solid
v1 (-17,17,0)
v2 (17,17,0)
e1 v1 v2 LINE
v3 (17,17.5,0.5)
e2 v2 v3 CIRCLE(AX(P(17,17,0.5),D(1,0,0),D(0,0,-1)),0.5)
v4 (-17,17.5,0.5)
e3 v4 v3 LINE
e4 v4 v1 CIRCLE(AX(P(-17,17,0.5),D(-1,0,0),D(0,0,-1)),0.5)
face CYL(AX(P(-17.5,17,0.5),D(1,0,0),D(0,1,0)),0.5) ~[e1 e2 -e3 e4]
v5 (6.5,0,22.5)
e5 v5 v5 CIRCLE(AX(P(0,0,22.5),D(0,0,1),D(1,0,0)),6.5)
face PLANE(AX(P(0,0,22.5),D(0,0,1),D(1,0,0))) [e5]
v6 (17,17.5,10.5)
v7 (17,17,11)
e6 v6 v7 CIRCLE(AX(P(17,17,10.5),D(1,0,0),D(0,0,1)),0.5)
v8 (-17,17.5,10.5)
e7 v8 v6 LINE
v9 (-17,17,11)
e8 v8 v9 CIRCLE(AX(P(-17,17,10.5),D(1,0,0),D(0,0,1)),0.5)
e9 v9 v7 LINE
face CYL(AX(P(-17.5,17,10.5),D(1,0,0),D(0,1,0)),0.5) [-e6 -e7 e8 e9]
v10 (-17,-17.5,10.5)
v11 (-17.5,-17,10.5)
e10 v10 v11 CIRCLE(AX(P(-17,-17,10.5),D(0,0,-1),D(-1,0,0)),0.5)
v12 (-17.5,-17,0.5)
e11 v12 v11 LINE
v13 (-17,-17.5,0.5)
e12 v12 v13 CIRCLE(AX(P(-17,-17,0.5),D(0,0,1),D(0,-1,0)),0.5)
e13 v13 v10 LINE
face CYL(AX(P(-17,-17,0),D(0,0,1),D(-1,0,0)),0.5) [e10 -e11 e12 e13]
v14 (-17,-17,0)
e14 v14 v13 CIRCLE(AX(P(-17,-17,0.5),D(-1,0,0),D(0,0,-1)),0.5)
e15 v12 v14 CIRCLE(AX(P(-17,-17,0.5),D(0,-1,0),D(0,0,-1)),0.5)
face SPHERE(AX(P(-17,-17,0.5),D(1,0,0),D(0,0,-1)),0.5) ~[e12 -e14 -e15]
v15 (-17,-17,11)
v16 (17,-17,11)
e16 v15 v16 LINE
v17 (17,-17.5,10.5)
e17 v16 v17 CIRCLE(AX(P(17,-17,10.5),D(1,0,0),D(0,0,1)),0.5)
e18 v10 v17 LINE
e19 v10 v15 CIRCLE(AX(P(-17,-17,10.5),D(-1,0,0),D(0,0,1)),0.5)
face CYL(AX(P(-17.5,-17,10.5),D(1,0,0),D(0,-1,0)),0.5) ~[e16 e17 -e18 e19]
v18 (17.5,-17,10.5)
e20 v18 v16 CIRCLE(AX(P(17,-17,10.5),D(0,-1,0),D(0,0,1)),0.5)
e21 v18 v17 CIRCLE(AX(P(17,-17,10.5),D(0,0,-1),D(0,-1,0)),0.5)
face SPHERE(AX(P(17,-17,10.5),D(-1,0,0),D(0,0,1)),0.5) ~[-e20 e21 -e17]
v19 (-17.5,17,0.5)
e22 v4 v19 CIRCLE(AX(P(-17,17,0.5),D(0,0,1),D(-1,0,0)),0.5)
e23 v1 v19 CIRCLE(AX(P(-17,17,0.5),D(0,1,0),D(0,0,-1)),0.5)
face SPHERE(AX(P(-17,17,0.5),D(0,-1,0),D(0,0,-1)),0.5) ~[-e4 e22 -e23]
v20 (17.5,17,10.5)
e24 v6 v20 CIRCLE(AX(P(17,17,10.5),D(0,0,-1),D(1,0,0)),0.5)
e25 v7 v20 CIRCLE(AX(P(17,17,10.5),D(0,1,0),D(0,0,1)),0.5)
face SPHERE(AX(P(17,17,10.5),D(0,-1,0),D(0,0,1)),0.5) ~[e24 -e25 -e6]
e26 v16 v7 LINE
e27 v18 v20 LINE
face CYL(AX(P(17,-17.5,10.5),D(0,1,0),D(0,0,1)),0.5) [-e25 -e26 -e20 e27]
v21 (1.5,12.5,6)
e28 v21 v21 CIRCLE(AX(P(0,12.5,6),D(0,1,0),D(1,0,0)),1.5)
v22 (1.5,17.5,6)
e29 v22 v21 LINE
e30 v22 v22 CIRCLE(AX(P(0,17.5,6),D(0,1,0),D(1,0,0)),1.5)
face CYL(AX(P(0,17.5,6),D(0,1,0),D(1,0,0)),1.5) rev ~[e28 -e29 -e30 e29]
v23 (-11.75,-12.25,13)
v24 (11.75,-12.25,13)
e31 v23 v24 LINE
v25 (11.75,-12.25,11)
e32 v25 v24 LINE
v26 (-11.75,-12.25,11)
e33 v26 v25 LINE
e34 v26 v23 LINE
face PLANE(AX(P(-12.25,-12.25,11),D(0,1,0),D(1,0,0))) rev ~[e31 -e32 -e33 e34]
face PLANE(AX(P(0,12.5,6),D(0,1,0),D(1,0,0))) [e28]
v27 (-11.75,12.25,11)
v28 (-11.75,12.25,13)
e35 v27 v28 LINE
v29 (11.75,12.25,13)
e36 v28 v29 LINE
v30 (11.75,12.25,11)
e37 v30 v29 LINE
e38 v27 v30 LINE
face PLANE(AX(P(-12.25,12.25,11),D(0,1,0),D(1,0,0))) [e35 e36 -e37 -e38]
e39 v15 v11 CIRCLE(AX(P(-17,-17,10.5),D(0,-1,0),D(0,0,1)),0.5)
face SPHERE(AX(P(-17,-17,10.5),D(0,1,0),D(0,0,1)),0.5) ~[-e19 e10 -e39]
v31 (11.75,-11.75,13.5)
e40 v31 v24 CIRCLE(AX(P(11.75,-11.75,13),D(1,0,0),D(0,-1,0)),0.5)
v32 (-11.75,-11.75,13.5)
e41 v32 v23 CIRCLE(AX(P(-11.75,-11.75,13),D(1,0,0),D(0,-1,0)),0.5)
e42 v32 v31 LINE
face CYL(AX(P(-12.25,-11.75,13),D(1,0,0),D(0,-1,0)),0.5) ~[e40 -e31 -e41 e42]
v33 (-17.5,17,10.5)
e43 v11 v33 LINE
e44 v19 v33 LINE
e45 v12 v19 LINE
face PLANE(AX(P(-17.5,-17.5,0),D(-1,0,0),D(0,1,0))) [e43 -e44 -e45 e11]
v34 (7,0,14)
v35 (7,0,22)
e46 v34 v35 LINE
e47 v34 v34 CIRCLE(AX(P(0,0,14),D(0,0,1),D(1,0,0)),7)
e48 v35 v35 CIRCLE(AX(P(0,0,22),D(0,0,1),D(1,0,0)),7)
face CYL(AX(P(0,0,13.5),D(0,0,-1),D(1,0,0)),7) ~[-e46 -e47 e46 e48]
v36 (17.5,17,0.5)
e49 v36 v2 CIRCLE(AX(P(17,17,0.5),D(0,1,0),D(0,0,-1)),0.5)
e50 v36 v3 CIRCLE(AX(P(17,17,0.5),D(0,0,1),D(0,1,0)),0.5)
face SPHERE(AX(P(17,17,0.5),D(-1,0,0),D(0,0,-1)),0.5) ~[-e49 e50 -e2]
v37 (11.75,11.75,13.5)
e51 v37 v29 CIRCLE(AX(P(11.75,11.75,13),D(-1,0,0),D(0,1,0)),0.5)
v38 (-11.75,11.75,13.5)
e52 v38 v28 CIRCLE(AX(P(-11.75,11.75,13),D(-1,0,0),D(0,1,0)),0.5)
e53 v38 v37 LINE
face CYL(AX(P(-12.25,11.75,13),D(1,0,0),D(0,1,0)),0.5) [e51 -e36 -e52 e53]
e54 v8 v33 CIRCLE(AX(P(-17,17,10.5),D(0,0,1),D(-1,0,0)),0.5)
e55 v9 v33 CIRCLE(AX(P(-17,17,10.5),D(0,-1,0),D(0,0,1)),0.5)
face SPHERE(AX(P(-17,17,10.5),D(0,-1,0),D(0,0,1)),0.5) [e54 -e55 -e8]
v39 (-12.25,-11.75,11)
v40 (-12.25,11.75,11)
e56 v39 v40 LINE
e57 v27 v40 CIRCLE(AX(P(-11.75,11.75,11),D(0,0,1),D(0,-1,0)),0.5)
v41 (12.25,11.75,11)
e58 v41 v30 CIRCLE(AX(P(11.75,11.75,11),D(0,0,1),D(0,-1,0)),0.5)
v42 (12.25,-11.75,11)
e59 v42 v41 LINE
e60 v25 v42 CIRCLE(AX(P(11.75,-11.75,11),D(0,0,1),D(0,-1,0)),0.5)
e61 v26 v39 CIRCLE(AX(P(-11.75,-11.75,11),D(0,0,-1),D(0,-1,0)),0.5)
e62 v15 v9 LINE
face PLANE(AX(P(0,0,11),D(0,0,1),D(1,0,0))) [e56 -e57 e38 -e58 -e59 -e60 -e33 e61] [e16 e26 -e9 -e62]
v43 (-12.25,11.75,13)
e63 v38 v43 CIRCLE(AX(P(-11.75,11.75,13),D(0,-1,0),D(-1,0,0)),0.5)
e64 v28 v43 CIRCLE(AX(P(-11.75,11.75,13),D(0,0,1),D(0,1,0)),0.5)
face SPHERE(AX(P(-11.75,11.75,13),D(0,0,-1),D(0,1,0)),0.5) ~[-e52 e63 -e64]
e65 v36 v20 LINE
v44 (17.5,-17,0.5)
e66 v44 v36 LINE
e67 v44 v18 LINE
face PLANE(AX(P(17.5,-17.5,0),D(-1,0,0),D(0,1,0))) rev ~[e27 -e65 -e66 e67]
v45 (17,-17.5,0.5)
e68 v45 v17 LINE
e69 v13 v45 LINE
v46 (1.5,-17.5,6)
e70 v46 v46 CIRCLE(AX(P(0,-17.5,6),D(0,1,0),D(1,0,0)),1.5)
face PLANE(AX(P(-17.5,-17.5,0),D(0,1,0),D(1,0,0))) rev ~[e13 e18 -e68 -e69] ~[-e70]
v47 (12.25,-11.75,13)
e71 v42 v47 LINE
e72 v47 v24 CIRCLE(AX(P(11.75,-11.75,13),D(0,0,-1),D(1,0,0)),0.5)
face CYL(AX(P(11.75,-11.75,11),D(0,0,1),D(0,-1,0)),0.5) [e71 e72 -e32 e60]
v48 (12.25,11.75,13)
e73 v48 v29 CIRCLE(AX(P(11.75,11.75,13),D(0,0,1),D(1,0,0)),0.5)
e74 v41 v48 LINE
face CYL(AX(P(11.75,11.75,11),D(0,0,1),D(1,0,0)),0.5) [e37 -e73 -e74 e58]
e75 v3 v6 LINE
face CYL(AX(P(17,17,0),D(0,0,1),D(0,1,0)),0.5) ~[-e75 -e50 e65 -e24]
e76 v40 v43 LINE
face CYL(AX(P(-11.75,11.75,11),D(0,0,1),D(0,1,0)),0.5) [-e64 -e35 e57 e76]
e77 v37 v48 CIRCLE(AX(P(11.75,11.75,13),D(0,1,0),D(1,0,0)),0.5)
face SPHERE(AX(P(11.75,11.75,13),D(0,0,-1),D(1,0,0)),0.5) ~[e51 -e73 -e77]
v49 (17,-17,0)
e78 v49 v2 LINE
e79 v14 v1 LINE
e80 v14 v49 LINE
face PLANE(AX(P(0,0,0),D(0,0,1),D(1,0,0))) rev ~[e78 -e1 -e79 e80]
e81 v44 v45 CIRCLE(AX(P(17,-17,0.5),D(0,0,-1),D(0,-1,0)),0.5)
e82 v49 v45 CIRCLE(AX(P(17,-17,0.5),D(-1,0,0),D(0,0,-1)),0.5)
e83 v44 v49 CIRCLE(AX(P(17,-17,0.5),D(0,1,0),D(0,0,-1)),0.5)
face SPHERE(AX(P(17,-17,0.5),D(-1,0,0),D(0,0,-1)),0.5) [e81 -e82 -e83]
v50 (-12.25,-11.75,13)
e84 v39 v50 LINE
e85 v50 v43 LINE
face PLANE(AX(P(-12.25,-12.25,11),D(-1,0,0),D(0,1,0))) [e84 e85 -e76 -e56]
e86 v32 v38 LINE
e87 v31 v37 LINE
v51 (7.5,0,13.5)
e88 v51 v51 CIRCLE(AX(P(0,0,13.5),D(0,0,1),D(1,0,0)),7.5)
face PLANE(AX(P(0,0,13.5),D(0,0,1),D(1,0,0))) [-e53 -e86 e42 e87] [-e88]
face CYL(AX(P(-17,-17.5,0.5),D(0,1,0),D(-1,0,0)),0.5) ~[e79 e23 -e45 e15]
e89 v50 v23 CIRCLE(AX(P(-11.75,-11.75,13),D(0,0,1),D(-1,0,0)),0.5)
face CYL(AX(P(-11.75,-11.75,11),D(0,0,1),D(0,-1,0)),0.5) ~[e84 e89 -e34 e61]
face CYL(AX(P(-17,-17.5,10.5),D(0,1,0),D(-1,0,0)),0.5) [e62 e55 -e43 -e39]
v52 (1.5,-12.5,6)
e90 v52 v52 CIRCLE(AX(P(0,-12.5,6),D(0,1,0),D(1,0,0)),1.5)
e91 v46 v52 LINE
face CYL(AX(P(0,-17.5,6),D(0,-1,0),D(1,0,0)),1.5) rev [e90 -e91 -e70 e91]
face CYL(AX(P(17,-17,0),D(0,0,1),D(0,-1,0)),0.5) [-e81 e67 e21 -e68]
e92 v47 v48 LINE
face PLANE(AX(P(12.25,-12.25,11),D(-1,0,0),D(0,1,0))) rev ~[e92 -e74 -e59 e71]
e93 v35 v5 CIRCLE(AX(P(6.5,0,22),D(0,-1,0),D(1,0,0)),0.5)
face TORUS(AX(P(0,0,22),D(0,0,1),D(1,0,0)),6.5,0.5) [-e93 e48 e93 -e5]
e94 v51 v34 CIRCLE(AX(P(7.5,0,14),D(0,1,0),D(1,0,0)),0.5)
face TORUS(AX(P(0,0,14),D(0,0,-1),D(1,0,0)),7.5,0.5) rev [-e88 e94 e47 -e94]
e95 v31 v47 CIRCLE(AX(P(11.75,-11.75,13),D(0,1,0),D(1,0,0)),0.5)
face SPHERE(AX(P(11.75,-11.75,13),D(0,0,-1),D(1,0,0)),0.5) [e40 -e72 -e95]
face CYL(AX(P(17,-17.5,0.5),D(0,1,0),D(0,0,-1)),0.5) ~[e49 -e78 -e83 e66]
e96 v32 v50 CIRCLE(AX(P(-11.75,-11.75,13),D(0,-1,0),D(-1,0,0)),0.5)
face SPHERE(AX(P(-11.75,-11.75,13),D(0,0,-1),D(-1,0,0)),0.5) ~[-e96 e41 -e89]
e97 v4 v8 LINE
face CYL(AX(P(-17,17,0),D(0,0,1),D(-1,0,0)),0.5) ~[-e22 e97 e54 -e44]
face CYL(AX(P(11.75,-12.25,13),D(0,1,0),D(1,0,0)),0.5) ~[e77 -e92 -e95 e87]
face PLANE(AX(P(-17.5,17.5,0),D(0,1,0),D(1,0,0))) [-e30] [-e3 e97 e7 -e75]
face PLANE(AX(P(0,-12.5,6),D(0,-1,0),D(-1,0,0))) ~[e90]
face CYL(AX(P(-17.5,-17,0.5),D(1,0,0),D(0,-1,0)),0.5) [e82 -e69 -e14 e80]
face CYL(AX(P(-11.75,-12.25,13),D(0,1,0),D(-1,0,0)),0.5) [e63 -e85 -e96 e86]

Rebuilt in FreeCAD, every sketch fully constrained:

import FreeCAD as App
import Part
import Sketcher
from FreeCAD import Vector
Q = App.Units.Quantity


def edges_at(feature, points):
    """Names of the edges that pass closest to the given points."""
    edges = feature.Shape.Edges
    near = lambda p: min(range(len(edges)), key=lambda i: edges[i].distToShape(Part.Vertex(*p))[0])
    return sorted({f"Edge{near(p) + 1}" for p in points})

doc = App.newDocument("Part")
body = doc.addObject("PartDesign::Body", "Body")

# Sketch on XY plane
sketch1 = doc.addObject("Sketcher::SketchObject", "Sketch")
body.addObject(sketch1)
sketch1.AttachmentSupport = (doc.XY_Plane, [""])
sketch1.MapMode = "FlatFace"
sketch1.addGeometry(Part.LineSegment(Vector(-17.5, 17.5, 0), Vector(-17.5, -17.5, 0)), False)
sketch1.addGeometry(Part.LineSegment(Vector(-17.5, -17.5, 0), Vector(17.5, -17.5, 0)), False)
sketch1.addGeometry(Part.LineSegment(Vector(17.5, -17.5, 0), Vector(17.5, 17.5, 0)), False)
sketch1.addGeometry(Part.LineSegment(Vector(17.5, 17.5, 0), Vector(-17.5, 17.5, 0)), False)
sketch1.addConstraint(Sketcher.Constraint("Coincident", 0, 2, 1, 1))
sketch1.addConstraint(Sketcher.Constraint("Coincident", 1, 2, 2, 1))
sketch1.addConstraint(Sketcher.Constraint("Coincident", 2, 2, 3, 1))
sketch1.addConstraint(Sketcher.Constraint("Coincident", 3, 2, 0, 1))
sketch1.addConstraint(Sketcher.Constraint("Vertical", 0))
sketch1.addConstraint(Sketcher.Constraint("Horizontal", 1))
sketch1.addConstraint(Sketcher.Constraint("Vertical", 2))
sketch1.addConstraint(Sketcher.Constraint("Horizontal", 3))
sketch1.addConstraint(Sketcher.Constraint("Symmetric", 0, 2, 2, 2, -1, 1))
sketch1.addConstraint(Sketcher.Constraint("Equal", 3, 0))
sketch1.addConstraint(Sketcher.Constraint("DistanceX", 1, 1, 1, 2, Q("35 mm")))
pad1 = doc.addObject("PartDesign::Pad", "Pad")
body.addObject(pad1)
pad1.Profile = sketch1
pad1.Length = 11

# Sketch on XZ plane
sketch2 = doc.addObject("Sketcher::SketchObject", "Sketch001")
body.addObject(sketch2)
sketch2.AttachmentSupport = (doc.XZ_Plane, [""])
sketch2.MapMode = "FlatFace"
sketch2.AttachmentOffset = App.Placement(Vector(0, 0, -17.5), App.Rotation())
sketch2.addGeometry(Part.Circle(Vector(0, 6, 0), Vector(0, 0, 1), 1.5), False)
sketch2.addConstraint(Sketcher.Constraint("PointOnObject", 0, 3, -2))
sketch2.addConstraint(Sketcher.Constraint("Diameter", 0, Q("3 mm")))
sketch2.addConstraint(Sketcher.Constraint("DistanceY", -1, 1, 0, 3, Q("6 mm")))
pocket1 = doc.addObject("PartDesign::Pocket", "Pocket")
body.addObject(pocket1)
pocket1.Profile = sketch2
pocket1.Length = 5
pocket1.Reversed = True
doc.recompute()

mirrored = doc.addObject("PartDesign::Mirrored", "Mirrored")
body.addObject(mirrored)
mirrored.Originals = [pocket1]
mirrored.MirrorPlane = (doc.XZ_Plane, [""])
body.Tip = mirrored

# Sketch on XY plane
sketch3 = doc.addObject("Sketcher::SketchObject", "Sketch002")
body.addObject(sketch3)
sketch3.AttachmentSupport = (doc.XY_Plane, [""])
sketch3.MapMode = "FlatFace"
sketch3.AttachmentOffset = App.Placement(Vector(0, 0, 11), App.Rotation())
sketch3.addGeometry(Part.LineSegment(Vector(-12.25, 12.25, 0), Vector(-12.25, -12.25, 0)), False)
sketch3.addGeometry(Part.LineSegment(Vector(-12.25, -12.25, 0), Vector(12.25, -12.25, 0)), False)
sketch3.addGeometry(Part.LineSegment(Vector(12.25, -12.25, 0), Vector(12.25, 12.25, 0)), False)
sketch3.addGeometry(Part.LineSegment(Vector(12.25, 12.25, 0), Vector(-12.25, 12.25, 0)), False)
sketch3.addConstraint(Sketcher.Constraint("Coincident", 0, 2, 1, 1))
sketch3.addConstraint(Sketcher.Constraint("Coincident", 1, 2, 2, 1))
sketch3.addConstraint(Sketcher.Constraint("Coincident", 2, 2, 3, 1))
sketch3.addConstraint(Sketcher.Constraint("Coincident", 3, 2, 0, 1))
sketch3.addConstraint(Sketcher.Constraint("Vertical", 0))
sketch3.addConstraint(Sketcher.Constraint("Horizontal", 1))
sketch3.addConstraint(Sketcher.Constraint("Vertical", 2))
sketch3.addConstraint(Sketcher.Constraint("Horizontal", 3))
sketch3.addConstraint(Sketcher.Constraint("Symmetric", 0, 2, 2, 2, -1, 1))
sketch3.addConstraint(Sketcher.Constraint("Equal", 3, 0))
sketch3.addConstraint(Sketcher.Constraint("DistanceX", 1, 1, 1, 2, Q("24.5 mm")))
pad2 = doc.addObject("PartDesign::Pad", "Pad001")
body.addObject(pad2)
pad2.Profile = sketch3
pad2.Length = 2.5

# Sketch on XY plane
sketch4 = doc.addObject("Sketcher::SketchObject", "Sketch003")
body.addObject(sketch4)
sketch4.AttachmentSupport = (doc.XY_Plane, [""])
sketch4.MapMode = "FlatFace"
sketch4.AttachmentOffset = App.Placement(Vector(0, 0, 13.5), App.Rotation())
sketch4.addGeometry(Part.Circle(Vector(0, 0, 0), Vector(0, 0, 1), 7), False)
sketch4.addConstraint(Sketcher.Constraint("Coincident", 0, 3, -1, 1))
sketch4.addConstraint(Sketcher.Constraint("Diameter", 0, Q("14 mm")))
pad3 = doc.addObject("PartDesign::Pad", "Pad002")
body.addObject(pad3)
pad3.Profile = sketch4
pad3.Length = 9
doc.recompute()

fillet = doc.addObject("PartDesign::Fillet", "Fillet")
body.addObject(fillet)
fillet.Base = (pad3, edges_at(pad3, [
    (-17.5, 0, 11),
    (0, -17.5, 11),
    (12.25, -12.25, 12.25),
    (12.25, 12.25, 12.25),
    (-12.25, 12.25, 12.25),
    (-12.25, -12.25, 12.25),
    (12.25, 0, 13.5),
    (0, 12.25, 13.5),
    (-12.25, 0, 13.5),
    (0, -12.25, 13.5),
    (-7, 0, 13.5),
    (17.5, 0, 11),
    (0, -17.5, 0),
    (-17.5, 0, 0),
    (0, 17.5, 0),
    (17.5, 0, 0),
    (0, 17.5, 11),
    (17.5, -17.5, 5.5),
    (-17.5, -17.5, 5.5),
    (-17.5, 17.5, 5.5),
    (17.5, 17.5, 5.5),
]))
fillet.Radius = 0.5
doc.recompute()

fillet2 = doc.addObject("PartDesign::Fillet", "Fillet001")
body.addObject(fillet2)
fillet2.Base = (fillet, edges_at(fillet, [(-7, 0, 22.5)]))
fillet2.Radius = 0.5

doc.recompute()
